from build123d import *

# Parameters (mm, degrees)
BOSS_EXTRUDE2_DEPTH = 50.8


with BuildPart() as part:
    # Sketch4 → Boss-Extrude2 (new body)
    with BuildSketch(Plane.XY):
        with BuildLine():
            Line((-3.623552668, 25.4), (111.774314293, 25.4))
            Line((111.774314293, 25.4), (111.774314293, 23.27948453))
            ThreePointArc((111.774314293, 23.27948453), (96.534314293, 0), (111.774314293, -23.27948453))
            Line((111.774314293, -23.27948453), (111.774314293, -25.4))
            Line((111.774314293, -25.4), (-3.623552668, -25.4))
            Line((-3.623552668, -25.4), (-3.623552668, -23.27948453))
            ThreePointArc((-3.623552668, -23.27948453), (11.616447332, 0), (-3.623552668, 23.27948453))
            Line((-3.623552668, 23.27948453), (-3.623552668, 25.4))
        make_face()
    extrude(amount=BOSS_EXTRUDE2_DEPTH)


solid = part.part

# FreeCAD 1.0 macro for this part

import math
import FreeCAD as App
import Part
import Sketcher
Q = App.Units.Quantity

doc = App.newDocument("Part")
params = doc.addObject("Spreadsheet::Sheet", "Params")
for row, (alias, value) in enumerate([
    ("sketch1_radius", "1 in"),
    ("pad1_length", "2 in"),
], start=1):
    params.set(f"A{row}", alias)
    params.set(f"B{row}", "=" + value)
    params.setAlias(f"B{row}", alias)

body = doc.addObject("PartDesign::Body", "Body")

# Sketch on XY plane
sketch1 = doc.addObject("Sketcher::SketchObject", "Sketch")
body.addObject(sketch1)
sketch1.AttachmentSupport = (doc.XY_Plane, [""])
sketch1.MapMode = "FlatFace"
sketch1.addGeometry(Part.LineSegment(App.Vector(111.8, 25.4, 0), App.Vector(-3.6, 25.4, 0)), False)
sketch1.addGeometry(Part.LineSegment(App.Vector(-3.6, 25.4, 0), App.Vector(-3.6, 23.3, 0)), False)
sketch1.addGeometry(Part.ArcOfCircle(Part.Circle(App.Vector(-13.8, 0, 0), App.Vector(0, 0, 1), 25.4), math.radians(-66), math.radians(66)), False)
sketch1.addGeometry(Part.LineSegment(App.Vector(-3.6, -23.3, 0), App.Vector(-3.6, -25.4, 0)), False)
sketch1.addGeometry(Part.LineSegment(App.Vector(-3.6, -25.4, 0), App.Vector(111.8, -25.4, 0)), False)
sketch1.addGeometry(Part.LineSegment(App.Vector(111.8, -25.4, 0), App.Vector(111.8, -23.3, 0)), False)
sketch1.addGeometry(Part.ArcOfCircle(Part.Circle(App.Vector(121.9, 0, 0), App.Vector(0, 0, 1), 25.4), math.radians(114), math.radians(246)), False)
sketch1.addGeometry(Part.LineSegment(App.Vector(111.8, 23.3, 0), App.Vector(111.8, 25.4, 0)), False)
sketch1.addConstraint(Sketcher.Constraint("Coincident", 0, 2, 1, 1))
sketch1.addConstraint(Sketcher.Constraint("Coincident", 1, 2, 2, 2))
sketch1.addConstraint(Sketcher.Constraint("Coincident", 2, 1, 3, 1))
sketch1.addConstraint(Sketcher.Constraint("Coincident", 3, 2, 4, 1))
sketch1.addConstraint(Sketcher.Constraint("Coincident", 4, 2, 5, 1))
sketch1.addConstraint(Sketcher.Constraint("Coincident", 5, 2, 6, 2))
sketch1.addConstraint(Sketcher.Constraint("Coincident", 6, 1, 7, 1))
sketch1.addConstraint(Sketcher.Constraint("Coincident", 7, 2, 0, 1))
sketch1.addConstraint(Sketcher.Constraint("Horizontal", 0))
sketch1.addConstraint(Sketcher.Constraint("Vertical", 1))
sketch1.addConstraint(Sketcher.Constraint("Vertical", 3))
sketch1.addConstraint(Sketcher.Constraint("Horizontal", 4))
sketch1.addConstraint(Sketcher.Constraint("Vertical", 5))
sketch1.addConstraint(Sketcher.Constraint("Vertical", 7))
sketch1.addConstraint(Sketcher.Constraint("Equal", 2, 6))
sketch1.addConstraint(Sketcher.Constraint("Symmetric", 1, 2, 2, 1, -1))
sketch1.addConstraint(Sketcher.Constraint("Symmetric", 5, 2, 6, 1, -1))
sketch1.addConstraint(Sketcher.Constraint("Horizontal", 2, 1, 5, 2))
sketch1.addConstraint(Sketcher.Constraint("Equal", 1, 3))
sketch1.addConstraint(Sketcher.Constraint("Radius", 2, Q("1 in")))
sketch1.addConstraint(Sketcher.Constraint("DistanceY", -1, 1, 0, 2, Q("1 in")))
sketch1.addConstraint(Sketcher.Constraint("DistanceX", 2, 3, 0, 2, Q("0.4 in")))
sketch1.addConstraint(Sketcher.Constraint("DistanceX", 0, 2, 0, 1, Q("115.397867 mm")))
sketch1.addConstraint(Sketcher.Constraint("DistanceX", 2, 3, -1, 1, Q("13.783553 mm")))
sketch1.setExpression("Constraints[19]", "Params.sketch1_radius")
pad1 = doc.addObject("PartDesign::Pad", "Pad")
body.addObject(pad1)
pad1.Profile = sketch1
pad1.setExpression("Length", "Params.pad1_length")

doc.recompute()
